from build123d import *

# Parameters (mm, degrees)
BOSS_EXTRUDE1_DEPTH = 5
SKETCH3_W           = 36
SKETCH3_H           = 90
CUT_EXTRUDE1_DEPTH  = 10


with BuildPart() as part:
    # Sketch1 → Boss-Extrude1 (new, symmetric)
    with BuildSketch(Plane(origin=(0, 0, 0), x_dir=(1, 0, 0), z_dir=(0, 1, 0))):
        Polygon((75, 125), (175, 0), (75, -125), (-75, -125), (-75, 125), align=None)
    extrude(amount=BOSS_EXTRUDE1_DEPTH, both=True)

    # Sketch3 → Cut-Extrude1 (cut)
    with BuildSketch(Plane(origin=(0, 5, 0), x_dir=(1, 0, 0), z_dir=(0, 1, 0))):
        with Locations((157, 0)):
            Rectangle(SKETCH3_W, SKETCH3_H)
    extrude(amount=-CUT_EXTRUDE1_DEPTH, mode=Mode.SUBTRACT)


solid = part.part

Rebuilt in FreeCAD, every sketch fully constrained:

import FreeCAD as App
import Part
import Sketcher
from FreeCAD import Vector
Q = App.Units.Quantity

doc = App.newDocument("Part")
body = doc.addObject("PartDesign::Body", "Body")

sketch1 = body.newObject("Sketcher::SketchObject", "Sketch")
sketch1.AttachmentSupport = (doc.getObject("XZ_Plane"), [""])
sketch1.MapMode = "FlatFace"
sketch1.addGeometry(Part.LineSegment(Vector(175, 0, 0), Vector(75, -125, 0)), False)
sketch1.addGeometry(Part.LineSegment(Vector(75, -125, 0), Vector(-75, -125, 0)), False)
sketch1.addGeometry(Part.LineSegment(Vector(-75, -125, 0), Vector(-75, 125, 0)), False)
sketch1.addGeometry(Part.LineSegment(Vector(-75, 125, 0), Vector(75, 125, 0)), False)
sketch1.addGeometry(Part.LineSegment(Vector(75, 125, 0), Vector(175, 0, 0)), False)
sketch1.addConstraint(Sketcher.Constraint("Coincident", 0, 2, 1, 1))
sketch1.addConstraint(Sketcher.Constraint("Coincident", 1, 2, 2, 1))
sketch1.addConstraint(Sketcher.Constraint("Coincident", 2, 2, 3, 1))
sketch1.addConstraint(Sketcher.Constraint("Coincident", 3, 2, 4, 1))
sketch1.addConstraint(Sketcher.Constraint("Coincident", 4, 2, 0, 1))
sketch1.addConstraint(Sketcher.Constraint("Horizontal", 1))
sketch1.addConstraint(Sketcher.Constraint("Vertical", 2))
sketch1.addConstraint(Sketcher.Constraint("Horizontal", 3))
sketch1.addConstraint(Sketcher.Constraint("Symmetric", 0, 2, 2, 2, -1, 1))
sketch1.addConstraint(Sketcher.Constraint("PointOnObject", 4, 2, -1))
sketch1.addConstraint(Sketcher.Constraint("Vertical", 0, 2, 3, 2))
sketch1.addConstraint(Sketcher.Constraint("DistanceX", 1, 2, 1, 1, Q("150 mm")))
sketch1.addConstraint(Sketcher.Constraint("DistanceY", 2, 1, 2, 2, Q("250 mm")))
sketch1.addConstraint(Sketcher.Constraint("DistanceX", -1, 1, 4, 2, Q("175 mm")))
pad1 = body.newObject("PartDesign::Pad", "Pad")
pad1.Profile = sketch1
pad1.Length = 10
pad1.Midplane = True

sketch2 = body.newObject("Sketcher::SketchObject", "Sketch001")
sketch2.AttachmentSupport = (doc.getObject("XZ_Plane"), [""])
sketch2.MapMode = "FlatFace"
sketch2.AttachmentOffset = App.Placement(Vector(0, 0, -5), App.Rotation())
sketch2.addGeometry(Part.LineSegment(Vector(139, -45, 0), Vector(139, 45, 0)), False)
sketch2.addGeometry(Part.LineSegment(Vector(139, 45, 0), Vector(175, 45, 0)), False)
sketch2.addGeometry(Part.LineSegment(Vector(175, 45, 0), Vector(175, -45, 0)), False)
sketch2.addGeometry(Part.LineSegment(Vector(175, -45, 0), Vector(139, -45, 0)), False)
sketch2.addConstraint(Sketcher.Constraint("Coincident", 0, 2, 1, 1))
sketch2.addConstraint(Sketcher.Constraint("Coincident", 1, 2, 2, 1))
sketch2.addConstraint(Sketcher.Constraint("Coincident", 2, 2, 3, 1))
sketch2.addConstraint(Sketcher.Constraint("Coincident", 3, 2, 0, 1))
sketch2.addConstraint(Sketcher.Constraint("Vertical", 0))
sketch2.addConstraint(Sketcher.Constraint("Horizontal", 1))
sketch2.addConstraint(Sketcher.Constraint("Vertical", 2))
sketch2.addConstraint(Sketcher.Constraint("Horizontal", 3))
sketch2.addConstraint(Sketcher.Constraint("DistanceX", 1, 1, 1, 2, Q("36 mm")))
sketch2.addConstraint(Sketcher.Constraint("DistanceY", 0, 1, 0, 2, Q("90 mm")))
sketch2.addConstraint(Sketcher.Constraint("DistanceX", -1, 1, 0, 2, Q("139 mm")))
sketch2.addConstraint(Sketcher.Constraint("DistanceY", -1, 1, 0, 2, Q("45 mm")))
pocket1 = body.newObject("PartDesign::Pocket", "Pocket")
pocket1.Profile = sketch2
pocket1.Length = 10
pocket1.Reversed = True

doc.recompute()
